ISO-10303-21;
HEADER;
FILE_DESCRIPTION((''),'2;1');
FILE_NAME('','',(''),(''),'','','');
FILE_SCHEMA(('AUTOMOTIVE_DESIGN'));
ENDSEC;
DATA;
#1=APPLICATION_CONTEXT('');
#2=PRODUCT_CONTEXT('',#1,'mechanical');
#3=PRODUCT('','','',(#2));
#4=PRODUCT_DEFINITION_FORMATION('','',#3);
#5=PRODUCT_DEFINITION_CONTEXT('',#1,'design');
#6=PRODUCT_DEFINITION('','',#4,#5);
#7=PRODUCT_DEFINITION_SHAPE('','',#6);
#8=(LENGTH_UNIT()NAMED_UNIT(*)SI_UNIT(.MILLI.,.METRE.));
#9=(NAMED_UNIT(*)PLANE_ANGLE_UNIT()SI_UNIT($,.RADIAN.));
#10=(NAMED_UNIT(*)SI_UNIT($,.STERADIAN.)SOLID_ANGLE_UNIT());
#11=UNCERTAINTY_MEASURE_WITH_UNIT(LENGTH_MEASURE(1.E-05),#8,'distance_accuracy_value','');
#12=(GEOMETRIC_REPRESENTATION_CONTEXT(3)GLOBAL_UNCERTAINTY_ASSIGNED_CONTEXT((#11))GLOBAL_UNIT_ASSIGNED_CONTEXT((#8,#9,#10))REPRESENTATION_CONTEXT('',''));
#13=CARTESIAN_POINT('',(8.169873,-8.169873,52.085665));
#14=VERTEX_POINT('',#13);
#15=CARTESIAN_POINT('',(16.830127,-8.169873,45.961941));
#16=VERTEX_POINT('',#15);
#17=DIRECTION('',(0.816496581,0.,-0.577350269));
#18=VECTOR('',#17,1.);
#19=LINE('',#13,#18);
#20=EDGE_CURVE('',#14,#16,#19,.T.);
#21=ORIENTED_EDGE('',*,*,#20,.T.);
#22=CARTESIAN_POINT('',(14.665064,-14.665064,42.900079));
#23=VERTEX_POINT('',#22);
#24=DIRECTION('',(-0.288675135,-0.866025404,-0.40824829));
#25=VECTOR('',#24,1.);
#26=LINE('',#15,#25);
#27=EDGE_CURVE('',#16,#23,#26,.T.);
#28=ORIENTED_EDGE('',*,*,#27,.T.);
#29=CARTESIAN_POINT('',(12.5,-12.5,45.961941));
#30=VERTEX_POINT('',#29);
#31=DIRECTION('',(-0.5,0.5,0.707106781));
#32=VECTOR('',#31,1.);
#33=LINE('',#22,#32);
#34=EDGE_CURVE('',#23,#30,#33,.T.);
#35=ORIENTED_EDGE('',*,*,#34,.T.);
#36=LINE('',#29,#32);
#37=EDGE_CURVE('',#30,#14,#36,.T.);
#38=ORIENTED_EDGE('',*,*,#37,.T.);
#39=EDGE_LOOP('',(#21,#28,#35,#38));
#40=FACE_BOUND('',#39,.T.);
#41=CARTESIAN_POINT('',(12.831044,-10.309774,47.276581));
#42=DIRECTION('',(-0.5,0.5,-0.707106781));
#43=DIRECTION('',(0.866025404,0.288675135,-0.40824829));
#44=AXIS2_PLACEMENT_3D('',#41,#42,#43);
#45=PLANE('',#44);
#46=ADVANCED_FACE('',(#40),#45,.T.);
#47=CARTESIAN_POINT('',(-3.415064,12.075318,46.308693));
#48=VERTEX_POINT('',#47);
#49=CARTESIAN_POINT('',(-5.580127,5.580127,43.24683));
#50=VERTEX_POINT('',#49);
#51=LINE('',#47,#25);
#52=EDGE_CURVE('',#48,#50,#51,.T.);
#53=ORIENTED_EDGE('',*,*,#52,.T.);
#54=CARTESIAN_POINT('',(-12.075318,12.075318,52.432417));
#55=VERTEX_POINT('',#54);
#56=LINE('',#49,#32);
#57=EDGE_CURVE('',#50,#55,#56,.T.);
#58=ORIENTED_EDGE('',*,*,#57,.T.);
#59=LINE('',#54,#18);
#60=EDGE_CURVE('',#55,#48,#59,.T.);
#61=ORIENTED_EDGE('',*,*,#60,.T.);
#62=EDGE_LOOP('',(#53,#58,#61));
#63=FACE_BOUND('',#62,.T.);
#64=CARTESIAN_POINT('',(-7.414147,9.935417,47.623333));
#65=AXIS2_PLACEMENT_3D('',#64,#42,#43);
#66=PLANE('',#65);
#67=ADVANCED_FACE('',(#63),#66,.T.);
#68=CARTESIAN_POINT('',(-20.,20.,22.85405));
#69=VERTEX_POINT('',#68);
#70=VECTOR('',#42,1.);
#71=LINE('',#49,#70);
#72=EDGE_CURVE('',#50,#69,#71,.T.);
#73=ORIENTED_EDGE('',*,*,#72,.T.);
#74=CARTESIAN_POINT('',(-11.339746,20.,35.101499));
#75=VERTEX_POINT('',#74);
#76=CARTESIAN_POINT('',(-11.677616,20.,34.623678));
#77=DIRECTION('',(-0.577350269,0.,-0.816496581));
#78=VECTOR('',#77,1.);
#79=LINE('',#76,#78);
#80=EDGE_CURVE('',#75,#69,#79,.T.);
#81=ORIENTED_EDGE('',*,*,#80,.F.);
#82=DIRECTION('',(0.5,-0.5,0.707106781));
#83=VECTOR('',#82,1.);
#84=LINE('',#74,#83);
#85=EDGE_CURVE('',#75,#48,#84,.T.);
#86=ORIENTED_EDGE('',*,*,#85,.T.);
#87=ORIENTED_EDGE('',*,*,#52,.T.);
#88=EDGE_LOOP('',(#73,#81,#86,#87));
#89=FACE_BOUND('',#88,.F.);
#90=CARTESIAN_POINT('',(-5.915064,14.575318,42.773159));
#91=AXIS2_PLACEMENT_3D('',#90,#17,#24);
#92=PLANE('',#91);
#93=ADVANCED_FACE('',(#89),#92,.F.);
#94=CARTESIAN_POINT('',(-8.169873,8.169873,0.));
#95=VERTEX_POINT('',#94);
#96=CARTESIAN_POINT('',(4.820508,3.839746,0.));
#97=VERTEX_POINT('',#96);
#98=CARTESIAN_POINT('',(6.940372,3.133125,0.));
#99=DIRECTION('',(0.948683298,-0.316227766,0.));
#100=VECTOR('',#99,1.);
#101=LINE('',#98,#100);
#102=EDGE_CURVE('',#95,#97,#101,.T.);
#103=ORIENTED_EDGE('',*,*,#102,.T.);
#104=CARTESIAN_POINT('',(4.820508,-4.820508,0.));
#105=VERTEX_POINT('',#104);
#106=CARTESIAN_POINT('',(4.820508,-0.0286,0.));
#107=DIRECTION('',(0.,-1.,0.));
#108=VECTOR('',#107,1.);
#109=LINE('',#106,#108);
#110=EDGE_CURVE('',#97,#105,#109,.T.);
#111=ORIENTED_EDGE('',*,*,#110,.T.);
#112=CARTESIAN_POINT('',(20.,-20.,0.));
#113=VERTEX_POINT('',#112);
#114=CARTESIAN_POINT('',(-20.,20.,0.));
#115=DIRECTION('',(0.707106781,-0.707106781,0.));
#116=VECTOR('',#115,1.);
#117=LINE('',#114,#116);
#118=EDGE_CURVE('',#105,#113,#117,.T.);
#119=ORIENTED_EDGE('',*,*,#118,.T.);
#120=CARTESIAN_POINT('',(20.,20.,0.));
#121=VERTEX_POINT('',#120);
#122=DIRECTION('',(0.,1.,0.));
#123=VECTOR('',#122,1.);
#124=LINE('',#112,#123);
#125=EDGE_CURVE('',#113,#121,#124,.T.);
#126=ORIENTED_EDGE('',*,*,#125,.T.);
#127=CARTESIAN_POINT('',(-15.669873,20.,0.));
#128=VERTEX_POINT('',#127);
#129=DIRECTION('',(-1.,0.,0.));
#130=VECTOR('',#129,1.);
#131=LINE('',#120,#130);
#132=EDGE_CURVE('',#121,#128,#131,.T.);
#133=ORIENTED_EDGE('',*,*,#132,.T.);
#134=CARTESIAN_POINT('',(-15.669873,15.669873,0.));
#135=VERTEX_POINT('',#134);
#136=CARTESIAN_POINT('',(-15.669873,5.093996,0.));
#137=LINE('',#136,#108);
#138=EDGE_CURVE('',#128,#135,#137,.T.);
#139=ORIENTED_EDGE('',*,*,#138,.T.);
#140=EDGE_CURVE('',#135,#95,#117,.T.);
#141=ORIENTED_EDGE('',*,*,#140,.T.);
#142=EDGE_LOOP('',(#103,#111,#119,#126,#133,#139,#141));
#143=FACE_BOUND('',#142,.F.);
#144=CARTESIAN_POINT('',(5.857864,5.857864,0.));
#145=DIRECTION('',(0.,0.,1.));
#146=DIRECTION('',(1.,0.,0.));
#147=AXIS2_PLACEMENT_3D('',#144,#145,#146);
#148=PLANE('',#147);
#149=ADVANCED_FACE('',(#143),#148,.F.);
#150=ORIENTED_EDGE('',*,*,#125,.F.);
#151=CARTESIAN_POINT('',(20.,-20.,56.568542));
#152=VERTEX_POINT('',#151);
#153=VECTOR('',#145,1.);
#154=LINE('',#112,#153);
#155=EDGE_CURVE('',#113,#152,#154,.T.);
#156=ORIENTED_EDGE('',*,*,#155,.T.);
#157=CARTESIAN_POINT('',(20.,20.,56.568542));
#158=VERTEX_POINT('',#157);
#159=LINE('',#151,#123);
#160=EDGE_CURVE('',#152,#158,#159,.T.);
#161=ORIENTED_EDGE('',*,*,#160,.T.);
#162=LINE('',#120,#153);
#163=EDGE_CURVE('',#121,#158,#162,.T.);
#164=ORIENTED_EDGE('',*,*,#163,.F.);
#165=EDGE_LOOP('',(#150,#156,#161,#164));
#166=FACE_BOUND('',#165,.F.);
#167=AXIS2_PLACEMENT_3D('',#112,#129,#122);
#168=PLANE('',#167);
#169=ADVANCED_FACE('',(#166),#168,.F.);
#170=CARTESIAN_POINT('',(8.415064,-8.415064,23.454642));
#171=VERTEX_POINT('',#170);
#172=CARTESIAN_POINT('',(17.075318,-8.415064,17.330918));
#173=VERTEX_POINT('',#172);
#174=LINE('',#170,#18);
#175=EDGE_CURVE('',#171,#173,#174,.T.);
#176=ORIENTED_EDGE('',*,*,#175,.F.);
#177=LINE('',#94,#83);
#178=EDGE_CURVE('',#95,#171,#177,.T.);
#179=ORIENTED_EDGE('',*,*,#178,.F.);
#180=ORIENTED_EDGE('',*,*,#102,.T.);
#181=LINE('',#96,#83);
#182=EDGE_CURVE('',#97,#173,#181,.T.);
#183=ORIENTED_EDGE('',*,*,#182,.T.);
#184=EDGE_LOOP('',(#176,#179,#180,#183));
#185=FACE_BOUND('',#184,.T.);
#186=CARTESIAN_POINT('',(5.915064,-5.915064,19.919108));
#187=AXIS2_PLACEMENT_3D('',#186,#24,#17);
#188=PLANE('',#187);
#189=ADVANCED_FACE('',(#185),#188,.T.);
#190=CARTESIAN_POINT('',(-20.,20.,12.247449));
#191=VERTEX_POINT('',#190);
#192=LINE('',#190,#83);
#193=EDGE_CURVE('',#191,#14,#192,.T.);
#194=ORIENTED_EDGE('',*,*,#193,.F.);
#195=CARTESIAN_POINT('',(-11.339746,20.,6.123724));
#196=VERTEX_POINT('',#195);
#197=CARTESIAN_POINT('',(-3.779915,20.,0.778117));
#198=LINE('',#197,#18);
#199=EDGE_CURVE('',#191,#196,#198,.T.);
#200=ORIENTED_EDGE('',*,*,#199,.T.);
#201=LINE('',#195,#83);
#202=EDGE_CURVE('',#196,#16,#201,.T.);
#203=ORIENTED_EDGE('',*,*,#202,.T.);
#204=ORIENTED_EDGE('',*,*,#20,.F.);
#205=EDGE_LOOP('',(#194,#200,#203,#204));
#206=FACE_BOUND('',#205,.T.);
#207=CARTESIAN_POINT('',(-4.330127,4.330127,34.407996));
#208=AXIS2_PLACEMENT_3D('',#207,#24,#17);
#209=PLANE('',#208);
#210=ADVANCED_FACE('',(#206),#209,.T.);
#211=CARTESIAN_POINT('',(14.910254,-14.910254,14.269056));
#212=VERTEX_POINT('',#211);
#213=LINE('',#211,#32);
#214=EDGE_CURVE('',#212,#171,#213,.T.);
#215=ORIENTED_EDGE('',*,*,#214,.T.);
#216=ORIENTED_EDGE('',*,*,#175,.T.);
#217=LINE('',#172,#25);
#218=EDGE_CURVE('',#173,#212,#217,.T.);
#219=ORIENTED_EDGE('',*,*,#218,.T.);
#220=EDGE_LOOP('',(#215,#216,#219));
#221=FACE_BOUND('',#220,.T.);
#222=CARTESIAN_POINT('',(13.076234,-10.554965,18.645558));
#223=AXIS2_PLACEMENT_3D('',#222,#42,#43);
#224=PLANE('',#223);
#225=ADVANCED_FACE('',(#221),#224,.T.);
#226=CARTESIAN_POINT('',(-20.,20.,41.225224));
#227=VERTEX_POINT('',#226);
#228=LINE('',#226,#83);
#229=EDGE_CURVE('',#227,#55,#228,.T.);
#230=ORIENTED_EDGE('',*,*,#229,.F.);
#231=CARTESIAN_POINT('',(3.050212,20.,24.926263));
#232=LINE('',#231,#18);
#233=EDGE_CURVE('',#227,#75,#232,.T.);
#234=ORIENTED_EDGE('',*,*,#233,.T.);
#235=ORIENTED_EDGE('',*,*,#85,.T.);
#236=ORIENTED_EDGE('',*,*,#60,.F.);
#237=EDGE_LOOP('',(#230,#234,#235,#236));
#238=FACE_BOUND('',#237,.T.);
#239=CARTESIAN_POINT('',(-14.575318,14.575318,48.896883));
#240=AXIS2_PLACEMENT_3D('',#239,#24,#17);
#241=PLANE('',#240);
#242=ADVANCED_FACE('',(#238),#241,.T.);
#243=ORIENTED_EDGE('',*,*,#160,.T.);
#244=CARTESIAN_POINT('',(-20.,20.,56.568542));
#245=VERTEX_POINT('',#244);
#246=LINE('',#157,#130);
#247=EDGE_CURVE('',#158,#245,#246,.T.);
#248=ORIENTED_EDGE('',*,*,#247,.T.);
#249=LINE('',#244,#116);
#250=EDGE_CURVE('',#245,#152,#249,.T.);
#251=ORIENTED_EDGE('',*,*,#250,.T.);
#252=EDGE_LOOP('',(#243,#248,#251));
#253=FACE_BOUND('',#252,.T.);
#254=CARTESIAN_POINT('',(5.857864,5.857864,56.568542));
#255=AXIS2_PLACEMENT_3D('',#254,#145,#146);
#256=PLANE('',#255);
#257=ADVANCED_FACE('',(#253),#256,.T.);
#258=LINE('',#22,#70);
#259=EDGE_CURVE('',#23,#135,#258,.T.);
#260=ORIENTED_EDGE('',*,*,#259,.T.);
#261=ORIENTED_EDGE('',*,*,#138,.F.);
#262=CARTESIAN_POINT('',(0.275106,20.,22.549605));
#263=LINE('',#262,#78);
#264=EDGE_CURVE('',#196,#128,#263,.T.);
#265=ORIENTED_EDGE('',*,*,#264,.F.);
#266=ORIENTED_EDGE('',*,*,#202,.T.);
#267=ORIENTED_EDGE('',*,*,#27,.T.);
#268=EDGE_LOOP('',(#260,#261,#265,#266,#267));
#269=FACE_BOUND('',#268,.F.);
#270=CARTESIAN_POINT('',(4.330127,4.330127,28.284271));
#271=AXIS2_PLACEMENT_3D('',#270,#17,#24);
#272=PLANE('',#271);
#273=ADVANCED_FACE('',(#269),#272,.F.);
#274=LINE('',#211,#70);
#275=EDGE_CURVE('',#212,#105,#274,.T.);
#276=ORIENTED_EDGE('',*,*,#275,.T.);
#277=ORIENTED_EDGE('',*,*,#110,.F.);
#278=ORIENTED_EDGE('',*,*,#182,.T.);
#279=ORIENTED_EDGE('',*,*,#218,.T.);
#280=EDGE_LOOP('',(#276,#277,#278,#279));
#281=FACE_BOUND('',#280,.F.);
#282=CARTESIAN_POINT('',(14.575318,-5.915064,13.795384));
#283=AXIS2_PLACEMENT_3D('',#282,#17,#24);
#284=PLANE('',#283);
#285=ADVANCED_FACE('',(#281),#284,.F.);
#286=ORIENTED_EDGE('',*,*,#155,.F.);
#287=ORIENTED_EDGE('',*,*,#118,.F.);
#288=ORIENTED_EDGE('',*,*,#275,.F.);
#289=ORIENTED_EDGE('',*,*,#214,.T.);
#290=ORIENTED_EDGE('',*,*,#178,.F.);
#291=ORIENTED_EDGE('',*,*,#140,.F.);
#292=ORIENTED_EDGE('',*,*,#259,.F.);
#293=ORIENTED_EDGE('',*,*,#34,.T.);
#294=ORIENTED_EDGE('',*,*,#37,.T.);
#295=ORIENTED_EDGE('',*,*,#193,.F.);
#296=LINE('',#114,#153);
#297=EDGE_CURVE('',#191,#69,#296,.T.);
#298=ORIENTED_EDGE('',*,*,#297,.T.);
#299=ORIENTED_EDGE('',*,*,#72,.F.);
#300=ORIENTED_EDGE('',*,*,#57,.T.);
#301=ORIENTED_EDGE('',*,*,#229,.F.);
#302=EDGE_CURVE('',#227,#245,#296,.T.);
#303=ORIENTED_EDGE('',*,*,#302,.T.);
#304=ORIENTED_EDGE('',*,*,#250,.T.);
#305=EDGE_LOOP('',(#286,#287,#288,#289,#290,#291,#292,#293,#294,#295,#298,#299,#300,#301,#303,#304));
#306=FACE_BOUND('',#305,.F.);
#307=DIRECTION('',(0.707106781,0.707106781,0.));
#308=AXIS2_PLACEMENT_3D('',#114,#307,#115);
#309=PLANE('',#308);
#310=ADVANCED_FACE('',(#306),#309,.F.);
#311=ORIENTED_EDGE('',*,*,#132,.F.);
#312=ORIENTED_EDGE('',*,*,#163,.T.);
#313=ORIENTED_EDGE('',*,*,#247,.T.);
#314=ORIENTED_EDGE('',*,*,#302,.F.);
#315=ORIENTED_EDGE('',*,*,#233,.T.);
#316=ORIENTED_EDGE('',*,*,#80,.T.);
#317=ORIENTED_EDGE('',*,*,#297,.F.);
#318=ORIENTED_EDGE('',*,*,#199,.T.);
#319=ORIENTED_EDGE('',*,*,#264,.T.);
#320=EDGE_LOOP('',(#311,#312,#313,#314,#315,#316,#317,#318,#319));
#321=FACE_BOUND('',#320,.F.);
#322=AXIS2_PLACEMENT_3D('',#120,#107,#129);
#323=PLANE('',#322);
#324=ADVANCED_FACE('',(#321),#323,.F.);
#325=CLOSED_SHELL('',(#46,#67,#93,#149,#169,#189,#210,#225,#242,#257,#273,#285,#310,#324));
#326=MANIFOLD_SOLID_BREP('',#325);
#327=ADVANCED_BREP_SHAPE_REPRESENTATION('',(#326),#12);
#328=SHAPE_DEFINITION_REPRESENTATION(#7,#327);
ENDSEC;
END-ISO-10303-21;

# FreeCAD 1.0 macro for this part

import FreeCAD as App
import Part
import Sketcher
Q = App.Units.Quantity


def add_polygon(sketch, points):
    """Adds a closed chain of lines whose ends are joined by coincident constraints."""
    first, n = sketch.GeometryCount, len(points)
    for a, b in zip(points, points[1:] + points[:1]):
        sketch.addGeometry(Part.LineSegment(App.Vector(*a, 0), App.Vector(*b, 0)), False)
    for i in range(n):
        sketch.addConstraint(Sketcher.Constraint("Coincident", first + i, 2, first + (i + 1) % n, 1))

doc = App.newDocument("Part")
body = doc.addObject("PartDesign::Body", "Body")

sketch1 = body.newObject("Sketcher::SketchObject", "Sketch")
sketch1.AttachmentSupport = (doc.getObject("XY_Plane"), [""])
sketch1.MapMode = "FlatFace"
add_polygon(sketch1, [(20, -20), (20, 20), (-20, 20)])
sketch1.addConstraint(Sketcher.Constraint("Vertical", 0))
sketch1.addConstraint(Sketcher.Constraint("Horizontal", 1))
sketch1.addConstraint(Sketcher.Constraint("Symmetric", 1, 2, 2, 2, -1, 1))
sketch1.addConstraint(Sketcher.Constraint("Equal", 1, 0))
sketch1.addConstraint(Sketcher.Constraint("DistanceX", 1, 2, 1, 1, Q("40 mm")))
pad1 = body.newObject("PartDesign::Pad", "Pad")
pad1.Profile = sketch1
pad1.Length = 56.568542

sketch2 = body.newObject("Sketcher::SketchObject", "Sketch001")
sketch2.Placement = App.Placement(App.Vector(10, -10, 14.142136), App.Rotation(App.Vector(0.866025404, 0.288675135, -0.40824829), App.Vector(0, -0.816496581, -0.57735027), App.Vector(-0.5, 0.5, -0.707106781), "ZXY"))
add_polygon(sketch2, [(-21, -30), (-28, -40), (-18, -37)])
add_polygon(sketch2, [(3, 4), (-5, -7), (5, -3)])
sketch2.addConstraint(Sketcher.Constraint("Perpendicular", 1, 2))
sketch2.addConstraint(Sketcher.Constraint("Parallel", 0, 3))
sketch2.addConstraint(Sketcher.Constraint("Perpendicular", 2, 4))
sketch2.addConstraint(Sketcher.Constraint("Perpendicular", 4, 5))
sketch2.addConstraint(Sketcher.Constraint("Equal", 0, 3))
sketch2.addConstraint(Sketcher.Constraint("DistanceX", 0, 2, 1, 2, Q("10 mm")))
sketch2.addConstraint(Sketcher.Constraint("Distance", 2, Q("7.5 mm")))
sketch2.addConstraint(Sketcher.Constraint("DistanceX", 2, 2, 1, 2, Q("2.5 mm")))
sketch2.addConstraint(Sketcher.Constraint("DistanceY", 1, 2, -1, 1, Q("36.595792 mm")))
sketch2.addConstraint(Sketcher.Constraint("DistanceX", 3, 2, -1, 1, Q("4.716878 mm")))
sketch2.addConstraint(Sketcher.Constraint("DistanceY", 4, 2, -1, 1, Q("3.135139 mm")))
sketch2.addConstraint(Sketcher.Constraint("DistanceX", 0, 2, -1, 1, Q("28.377132 mm")))
pocket1 = body.newObject("PartDesign::Pocket", "Pocket")
pocket1.Profile = sketch2
pocket1.Type = "TwoLengths"
pocket1.Length = 50
pocket1.Length2 = 5
pocket1.Reversed = True

sketch3 = body.newObject("Sketcher::SketchObject", "Sketch002")
sketch3.Placement = App.Placement(App.Vector(10, -10, 14.142136), App.Rotation(App.Vector(0.866025404, 0.288675135, -0.40824829), App.Vector(0, -0.816496581, -0.57735027), App.Vector(-0.5, 0.5, -0.707106781), "ZXY"))
add_polygon(sketch3, [(-11.5, -16.3), (-16.5, -23.4), (-6.5, -19.9), (-9, -12.8)])
sketch3.addConstraint(Sketcher.Constraint("Perpendicular", 1, 2))
sketch3.addConstraint(Sketcher.Constraint("Parallel", 0, 3))
sketch3.addConstraint(Sketcher.Constraint("DistanceX", 0, 2, 1, 2, Q("10 mm")))
sketch3.addConstraint(Sketcher.Constraint("DistanceX", 3, 2, 1, 2, Q("5 mm")))
sketch3.addConstraint(Sketcher.Constraint("Distance", 2, Q("7.5 mm")))
sketch3.addConstraint(Sketcher.Constraint("DistanceX", 2, 2, 1, 2, Q("2.5 mm")))
sketch3.addConstraint(Sketcher.Constraint("DistanceY", 0, 2, -1, 1, Q("23.400999 mm")))
sketch3.addConstraint(Sketcher.Constraint("DistanceX", 0, 2, -1, 1, Q("16.547005 mm")))
pocket2 = body.newObject("PartDesign::Pocket", "Pocket001")
pocket2.Profile = sketch3
pocket2.Type = "TwoLengths"
pocket2.Length = 25
pocket2.Length2 = 50

doc.recompute()
